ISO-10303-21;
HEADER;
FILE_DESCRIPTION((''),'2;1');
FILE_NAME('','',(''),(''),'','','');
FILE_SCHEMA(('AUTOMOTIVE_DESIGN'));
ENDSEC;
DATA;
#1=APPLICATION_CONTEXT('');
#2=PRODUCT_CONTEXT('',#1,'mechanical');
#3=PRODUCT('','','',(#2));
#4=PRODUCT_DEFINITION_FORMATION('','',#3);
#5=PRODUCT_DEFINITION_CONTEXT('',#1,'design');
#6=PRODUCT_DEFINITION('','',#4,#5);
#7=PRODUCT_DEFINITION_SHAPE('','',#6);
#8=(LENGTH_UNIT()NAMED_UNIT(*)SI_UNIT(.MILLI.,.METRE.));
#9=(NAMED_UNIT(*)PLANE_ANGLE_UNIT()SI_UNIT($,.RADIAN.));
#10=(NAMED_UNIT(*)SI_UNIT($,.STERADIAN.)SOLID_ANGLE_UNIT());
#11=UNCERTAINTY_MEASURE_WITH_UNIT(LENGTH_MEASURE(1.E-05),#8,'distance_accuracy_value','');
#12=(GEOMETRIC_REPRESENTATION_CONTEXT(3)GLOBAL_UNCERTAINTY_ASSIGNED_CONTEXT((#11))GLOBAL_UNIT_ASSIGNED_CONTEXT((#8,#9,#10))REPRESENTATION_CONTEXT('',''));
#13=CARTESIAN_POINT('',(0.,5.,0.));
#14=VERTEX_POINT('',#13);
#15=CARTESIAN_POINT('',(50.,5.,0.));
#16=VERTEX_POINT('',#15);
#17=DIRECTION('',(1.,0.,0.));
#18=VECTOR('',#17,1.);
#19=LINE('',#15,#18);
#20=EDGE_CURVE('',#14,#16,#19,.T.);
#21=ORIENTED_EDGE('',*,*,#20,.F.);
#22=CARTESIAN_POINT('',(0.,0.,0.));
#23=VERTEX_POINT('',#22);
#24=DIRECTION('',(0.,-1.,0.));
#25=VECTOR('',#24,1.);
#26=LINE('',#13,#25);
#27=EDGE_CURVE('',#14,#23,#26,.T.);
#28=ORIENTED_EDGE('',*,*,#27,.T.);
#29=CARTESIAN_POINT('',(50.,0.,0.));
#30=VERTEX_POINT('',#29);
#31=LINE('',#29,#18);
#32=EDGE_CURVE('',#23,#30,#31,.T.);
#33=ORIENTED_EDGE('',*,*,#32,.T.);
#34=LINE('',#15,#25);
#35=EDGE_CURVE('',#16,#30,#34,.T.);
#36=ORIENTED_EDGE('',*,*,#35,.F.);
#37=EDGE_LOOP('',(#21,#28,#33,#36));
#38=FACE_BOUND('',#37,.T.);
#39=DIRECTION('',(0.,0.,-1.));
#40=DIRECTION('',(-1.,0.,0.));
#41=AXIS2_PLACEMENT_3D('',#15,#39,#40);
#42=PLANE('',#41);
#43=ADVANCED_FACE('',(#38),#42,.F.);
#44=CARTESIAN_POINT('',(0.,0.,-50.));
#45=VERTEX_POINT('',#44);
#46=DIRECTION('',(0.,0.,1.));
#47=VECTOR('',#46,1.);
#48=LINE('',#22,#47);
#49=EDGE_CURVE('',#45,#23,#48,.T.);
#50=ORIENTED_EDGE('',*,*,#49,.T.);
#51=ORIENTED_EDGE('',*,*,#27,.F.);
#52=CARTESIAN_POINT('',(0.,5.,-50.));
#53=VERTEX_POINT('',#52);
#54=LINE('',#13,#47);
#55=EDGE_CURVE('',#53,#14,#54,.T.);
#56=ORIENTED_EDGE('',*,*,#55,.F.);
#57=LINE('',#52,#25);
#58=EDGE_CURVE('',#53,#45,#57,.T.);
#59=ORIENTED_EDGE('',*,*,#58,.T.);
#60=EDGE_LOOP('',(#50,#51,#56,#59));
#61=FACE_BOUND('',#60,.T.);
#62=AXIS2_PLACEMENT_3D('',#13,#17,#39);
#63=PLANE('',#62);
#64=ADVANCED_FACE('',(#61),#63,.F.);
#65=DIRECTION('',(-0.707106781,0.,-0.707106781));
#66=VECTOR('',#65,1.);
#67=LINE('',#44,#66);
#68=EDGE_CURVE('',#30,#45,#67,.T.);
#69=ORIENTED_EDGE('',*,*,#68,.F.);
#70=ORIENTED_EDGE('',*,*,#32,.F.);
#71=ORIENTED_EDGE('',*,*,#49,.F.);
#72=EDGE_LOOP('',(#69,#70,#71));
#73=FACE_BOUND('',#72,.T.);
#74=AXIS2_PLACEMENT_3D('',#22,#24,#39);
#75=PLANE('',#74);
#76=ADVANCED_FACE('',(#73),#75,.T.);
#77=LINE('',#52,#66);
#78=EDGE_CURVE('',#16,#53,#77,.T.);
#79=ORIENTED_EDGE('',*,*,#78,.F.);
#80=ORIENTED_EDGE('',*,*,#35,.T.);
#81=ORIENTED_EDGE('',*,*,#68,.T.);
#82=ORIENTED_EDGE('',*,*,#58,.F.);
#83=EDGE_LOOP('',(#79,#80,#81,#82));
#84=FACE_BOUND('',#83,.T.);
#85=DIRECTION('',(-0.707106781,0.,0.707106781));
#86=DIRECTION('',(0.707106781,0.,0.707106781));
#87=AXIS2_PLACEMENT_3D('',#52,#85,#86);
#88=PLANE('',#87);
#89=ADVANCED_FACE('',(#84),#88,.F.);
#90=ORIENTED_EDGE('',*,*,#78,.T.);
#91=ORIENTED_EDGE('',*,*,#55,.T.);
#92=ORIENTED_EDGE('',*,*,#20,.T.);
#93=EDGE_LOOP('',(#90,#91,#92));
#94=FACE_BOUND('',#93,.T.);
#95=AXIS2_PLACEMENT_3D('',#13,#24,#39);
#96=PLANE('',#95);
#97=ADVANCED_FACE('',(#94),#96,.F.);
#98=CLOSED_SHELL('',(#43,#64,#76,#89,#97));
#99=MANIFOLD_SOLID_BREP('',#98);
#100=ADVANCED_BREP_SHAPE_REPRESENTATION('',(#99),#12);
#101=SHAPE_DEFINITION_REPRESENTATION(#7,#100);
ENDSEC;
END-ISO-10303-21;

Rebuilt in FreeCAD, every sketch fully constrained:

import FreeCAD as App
import Part
import Sketcher


def add_polygon(sketch, points):
    """Adds a closed chain of lines whose ends are joined by coincident constraints."""
    first, n = sketch.GeometryCount, len(points)
    for a, b in zip(points, points[1:] + points[:1]):
        sketch.addGeometry(Part.LineSegment(App.Vector(*a, 0), App.Vector(*b, 0)), False)
    for i in range(n):
        sketch.addConstraint(Sketcher.Constraint("Coincident", first + i, 2, first + (i + 1) % n, 1))

doc = App.newDocument("Part")
params = doc.addObject("Spreadsheet::Sheet", "Params")
for row, (alias, value) in enumerate([
    ("sketch1_width", "50 mm"),
    ("pad1_length", "5 mm"),
], start=1):
    params.set(f"A{row}", alias)
    params.set(f"B{row}", "=" + value)
    params.setAlias(f"B{row}", alias)

body = doc.addObject("PartDesign::Body", "Body")

# Sketch on XZ plane
sketch1 = doc.addObject("Sketcher::SketchObject", "Sketch")
body.addObject(sketch1)
sketch1.AttachmentSupport = (doc.XZ_Plane, [""])
sketch1.MapMode = "FlatFace"
add_polygon(sketch1, [(0, -50), (0, 0), (50, 0)])  # lines 0-2
sketch1.addConstraint([
    Sketcher.Constraint("Vertical", 0),
    Sketcher.Constraint("Horizontal", 1),
    Sketcher.Constraint("Coincident", 0, 2, -1, 1),
    Sketcher.Constraint("Equal", 1, 0),
    Sketcher.Constraint("DistanceX", 1, 1, 1, 2, 50.0),
])
sketch1.setExpression("Constraints[7]", "Params.sketch1_width")
pad1 = doc.addObject("PartDesign::Pad", "Pad")
body.addObject(pad1)
pad1.Profile = sketch1
pad1.setExpression("Length", "Params.pad1_length")
pad1.Reversed = True

doc.recompute()
